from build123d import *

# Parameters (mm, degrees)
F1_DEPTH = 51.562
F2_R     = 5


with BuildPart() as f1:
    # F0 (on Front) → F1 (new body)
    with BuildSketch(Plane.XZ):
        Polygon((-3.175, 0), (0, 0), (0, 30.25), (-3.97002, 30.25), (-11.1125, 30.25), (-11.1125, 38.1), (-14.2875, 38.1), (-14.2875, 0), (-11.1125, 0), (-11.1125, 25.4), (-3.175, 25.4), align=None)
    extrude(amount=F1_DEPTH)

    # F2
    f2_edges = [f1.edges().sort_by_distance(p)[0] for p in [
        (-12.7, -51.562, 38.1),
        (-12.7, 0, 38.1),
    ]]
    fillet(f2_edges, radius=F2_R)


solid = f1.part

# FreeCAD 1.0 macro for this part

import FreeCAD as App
import Part
import Sketcher

V = App.Vector
Q = App.Units.Quantity


def edges_at(feature, points):
    """Names of the edges that pass closest to the given points."""
    edges = feature.Shape.Edges
    near = lambda p: min(range(len(edges)), key=lambda i: edges[i].distToShape(Part.Vertex(*p))[0])
    return sorted({f"Edge{near(p) + 1}" for p in points})

doc = App.newDocument("Part")
body = doc.addObject("PartDesign::Body", "Body")

# Sketch on XZ plane
sketch1 = doc.addObject("Sketcher::SketchObject", "Sketch")
body.addObject(sketch1)
sketch1.AttachmentSupport = (doc.XZ_Plane, [""])
sketch1.MapMode = "FlatFace"
sketch1.addGeometry(Part.LineSegment(V(-3.175, 0, 0), V(0, 0, 0)), False)
sketch1.addGeometry(Part.LineSegment(V(0, 0, 0), V(0, 30.25, 0)), False)
sketch1.addGeometry(Part.LineSegment(V(0, 30.25, 0), V(-11.1125, 30.25, 0)), False)
sketch1.addGeometry(Part.LineSegment(V(-11.1125, 30.25, 0), V(-11.1125, 38.1, 0)), False)
sketch1.addGeometry(Part.LineSegment(V(-11.1125, 38.1, 0), V(-14.2875, 38.1, 0)), False)
sketch1.addGeometry(Part.LineSegment(V(-14.2875, 38.1, 0), V(-14.2875, 0, 0)), False)
sketch1.addGeometry(Part.LineSegment(V(-14.2875, 0, 0), V(-11.1125, 0, 0)), False)
sketch1.addGeometry(Part.LineSegment(V(-11.1125, 0, 0), V(-11.1125, 25.4, 0)), False)
sketch1.addGeometry(Part.LineSegment(V(-11.1125, 25.4, 0), V(-3.175, 25.4, 0)), False)
sketch1.addGeometry(Part.LineSegment(V(-3.175, 25.4, 0), V(-3.175, 0, 0)), False)
sketch1.addConstraint(Sketcher.Constraint("Coincident", 0, 2, 1, 1))
sketch1.addConstraint(Sketcher.Constraint("Coincident", 1, 2, 2, 1))
sketch1.addConstraint(Sketcher.Constraint("Coincident", 2, 2, 3, 1))
sketch1.addConstraint(Sketcher.Constraint("Coincident", 3, 2, 4, 1))
sketch1.addConstraint(Sketcher.Constraint("Coincident", 4, 2, 5, 1))
sketch1.addConstraint(Sketcher.Constraint("Coincident", 5, 2, 6, 1))
sketch1.addConstraint(Sketcher.Constraint("Coincident", 6, 2, 7, 1))
sketch1.addConstraint(Sketcher.Constraint("Coincident", 7, 2, 8, 1))
sketch1.addConstraint(Sketcher.Constraint("Coincident", 8, 2, 9, 1))
sketch1.addConstraint(Sketcher.Constraint("Coincident", 9, 2, 0, 1))
sketch1.addConstraint(Sketcher.Constraint("Horizontal", 0))
sketch1.addConstraint(Sketcher.Constraint("Vertical", 1))
sketch1.addConstraint(Sketcher.Constraint("Horizontal", 2))
sketch1.addConstraint(Sketcher.Constraint("Vertical", 3))
sketch1.addConstraint(Sketcher.Constraint("Horizontal", 4))
sketch1.addConstraint(Sketcher.Constraint("Vertical", 5))
sketch1.addConstraint(Sketcher.Constraint("Horizontal", 6))
sketch1.addConstraint(Sketcher.Constraint("Vertical", 7))
sketch1.addConstraint(Sketcher.Constraint("Horizontal", 8))
sketch1.addConstraint(Sketcher.Constraint("Vertical", 9))
sketch1.addConstraint(Sketcher.Constraint("Coincident", 0, 2, -1, 1))
sketch1.addConstraint(Sketcher.Constraint("PointOnObject", 5, 2, -1))
sketch1.addConstraint(Sketcher.Constraint("Vertical", 3, 2, 6, 2))
sketch1.addConstraint(Sketcher.Constraint("Equal", 0, 4))
sketch1.addConstraint(Sketcher.Constraint("DistanceY", 7, 1, 7, 2, Q("1 in")))
sketch1.addConstraint(Sketcher.Constraint("DistanceY", 5, 2, 5, 1, Q("1.5 in")))
sketch1.addConstraint(Sketcher.Constraint("DistanceX", 0, 1, 0, 2, Q("0.125 in")))
sketch1.addConstraint(Sketcher.Constraint("DistanceX", 2, 2, 2, 1, Q("0.4375 in")))
sketch1.addConstraint(Sketcher.Constraint("DistanceY", 1, 1, 1, 2, Q("30.25 mm")))
pad1 = doc.addObject("PartDesign::Pad", "Pad")
body.addObject(pad1)
pad1.Profile = sketch1
pad1.Length = Q("2.03 in")
doc.recompute()

fillet = doc.addObject("PartDesign::Fillet", "Fillet")
body.addObject(fillet)
fillet.Base = (pad1, edges_at(pad1, [(-12.7, -51.562, 38.1), (-12.7, 0, 38.1)]))
fillet.Radius = 5

doc.recompute()
